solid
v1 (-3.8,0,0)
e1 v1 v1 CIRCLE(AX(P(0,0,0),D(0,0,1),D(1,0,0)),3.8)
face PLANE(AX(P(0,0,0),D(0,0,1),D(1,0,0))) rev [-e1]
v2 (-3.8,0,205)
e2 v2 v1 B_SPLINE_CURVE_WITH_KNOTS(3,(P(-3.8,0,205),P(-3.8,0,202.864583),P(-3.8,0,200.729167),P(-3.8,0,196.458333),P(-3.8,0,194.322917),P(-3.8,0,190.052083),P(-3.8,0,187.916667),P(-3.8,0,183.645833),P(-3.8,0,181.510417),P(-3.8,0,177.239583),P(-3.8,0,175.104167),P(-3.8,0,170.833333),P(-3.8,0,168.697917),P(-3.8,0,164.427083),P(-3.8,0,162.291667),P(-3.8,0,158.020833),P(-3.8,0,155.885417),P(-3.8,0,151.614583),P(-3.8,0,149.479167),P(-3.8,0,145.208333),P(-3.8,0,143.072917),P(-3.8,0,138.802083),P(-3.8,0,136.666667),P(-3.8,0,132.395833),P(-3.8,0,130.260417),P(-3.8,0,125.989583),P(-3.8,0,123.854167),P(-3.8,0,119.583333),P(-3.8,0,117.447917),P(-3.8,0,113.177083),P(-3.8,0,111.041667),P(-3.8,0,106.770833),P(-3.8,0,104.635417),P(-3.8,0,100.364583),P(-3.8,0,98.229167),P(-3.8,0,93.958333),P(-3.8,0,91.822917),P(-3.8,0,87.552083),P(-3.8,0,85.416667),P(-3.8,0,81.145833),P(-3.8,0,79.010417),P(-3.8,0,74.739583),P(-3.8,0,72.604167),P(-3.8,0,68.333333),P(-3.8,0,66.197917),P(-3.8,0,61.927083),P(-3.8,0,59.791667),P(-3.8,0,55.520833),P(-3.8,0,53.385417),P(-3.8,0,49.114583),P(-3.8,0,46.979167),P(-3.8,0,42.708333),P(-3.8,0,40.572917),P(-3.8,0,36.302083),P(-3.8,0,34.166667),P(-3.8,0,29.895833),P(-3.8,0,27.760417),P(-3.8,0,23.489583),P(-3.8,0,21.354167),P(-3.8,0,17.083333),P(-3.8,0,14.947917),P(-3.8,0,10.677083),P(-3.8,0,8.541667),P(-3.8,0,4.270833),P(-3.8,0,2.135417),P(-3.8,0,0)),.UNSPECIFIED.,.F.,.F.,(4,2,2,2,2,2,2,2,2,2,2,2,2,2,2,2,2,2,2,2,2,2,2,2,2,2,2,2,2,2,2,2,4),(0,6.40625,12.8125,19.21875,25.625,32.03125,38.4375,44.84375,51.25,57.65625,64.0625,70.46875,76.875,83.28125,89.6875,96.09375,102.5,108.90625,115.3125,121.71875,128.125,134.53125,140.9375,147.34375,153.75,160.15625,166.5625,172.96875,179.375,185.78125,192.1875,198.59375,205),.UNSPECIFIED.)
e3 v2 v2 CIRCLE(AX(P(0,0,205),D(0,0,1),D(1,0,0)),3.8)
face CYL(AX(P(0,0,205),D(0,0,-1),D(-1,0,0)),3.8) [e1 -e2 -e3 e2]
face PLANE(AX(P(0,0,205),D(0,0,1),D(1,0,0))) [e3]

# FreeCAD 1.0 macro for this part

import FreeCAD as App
import Part
import Sketcher
Q = App.Units.Quantity

doc = App.newDocument("Part")
body = doc.addObject("PartDesign::Body", "Body")

# Sketch on XY plane
sketch1 = body.newObject("Sketcher::SketchObject", "Sketch")
sketch1.AttachmentSupport = (doc.getObject("XY_Plane"), [""])
sketch1.MapMode = "FlatFace"
sketch1.addGeometry(Part.Circle(App.Vector(0, 0, 0), App.Vector(0, 0, 1), 3.8), False)
sketch1.addConstraint([
    Sketcher.Constraint("Coincident", 0, 3, -1, 1),
    Sketcher.Constraint("Diameter", 0, Q("7.6 mm")),
])
pad1 = body.newObject("PartDesign::Pad", "Pad")
pad1.Profile = sketch1
pad1.Length = 205

doc.recompute()
